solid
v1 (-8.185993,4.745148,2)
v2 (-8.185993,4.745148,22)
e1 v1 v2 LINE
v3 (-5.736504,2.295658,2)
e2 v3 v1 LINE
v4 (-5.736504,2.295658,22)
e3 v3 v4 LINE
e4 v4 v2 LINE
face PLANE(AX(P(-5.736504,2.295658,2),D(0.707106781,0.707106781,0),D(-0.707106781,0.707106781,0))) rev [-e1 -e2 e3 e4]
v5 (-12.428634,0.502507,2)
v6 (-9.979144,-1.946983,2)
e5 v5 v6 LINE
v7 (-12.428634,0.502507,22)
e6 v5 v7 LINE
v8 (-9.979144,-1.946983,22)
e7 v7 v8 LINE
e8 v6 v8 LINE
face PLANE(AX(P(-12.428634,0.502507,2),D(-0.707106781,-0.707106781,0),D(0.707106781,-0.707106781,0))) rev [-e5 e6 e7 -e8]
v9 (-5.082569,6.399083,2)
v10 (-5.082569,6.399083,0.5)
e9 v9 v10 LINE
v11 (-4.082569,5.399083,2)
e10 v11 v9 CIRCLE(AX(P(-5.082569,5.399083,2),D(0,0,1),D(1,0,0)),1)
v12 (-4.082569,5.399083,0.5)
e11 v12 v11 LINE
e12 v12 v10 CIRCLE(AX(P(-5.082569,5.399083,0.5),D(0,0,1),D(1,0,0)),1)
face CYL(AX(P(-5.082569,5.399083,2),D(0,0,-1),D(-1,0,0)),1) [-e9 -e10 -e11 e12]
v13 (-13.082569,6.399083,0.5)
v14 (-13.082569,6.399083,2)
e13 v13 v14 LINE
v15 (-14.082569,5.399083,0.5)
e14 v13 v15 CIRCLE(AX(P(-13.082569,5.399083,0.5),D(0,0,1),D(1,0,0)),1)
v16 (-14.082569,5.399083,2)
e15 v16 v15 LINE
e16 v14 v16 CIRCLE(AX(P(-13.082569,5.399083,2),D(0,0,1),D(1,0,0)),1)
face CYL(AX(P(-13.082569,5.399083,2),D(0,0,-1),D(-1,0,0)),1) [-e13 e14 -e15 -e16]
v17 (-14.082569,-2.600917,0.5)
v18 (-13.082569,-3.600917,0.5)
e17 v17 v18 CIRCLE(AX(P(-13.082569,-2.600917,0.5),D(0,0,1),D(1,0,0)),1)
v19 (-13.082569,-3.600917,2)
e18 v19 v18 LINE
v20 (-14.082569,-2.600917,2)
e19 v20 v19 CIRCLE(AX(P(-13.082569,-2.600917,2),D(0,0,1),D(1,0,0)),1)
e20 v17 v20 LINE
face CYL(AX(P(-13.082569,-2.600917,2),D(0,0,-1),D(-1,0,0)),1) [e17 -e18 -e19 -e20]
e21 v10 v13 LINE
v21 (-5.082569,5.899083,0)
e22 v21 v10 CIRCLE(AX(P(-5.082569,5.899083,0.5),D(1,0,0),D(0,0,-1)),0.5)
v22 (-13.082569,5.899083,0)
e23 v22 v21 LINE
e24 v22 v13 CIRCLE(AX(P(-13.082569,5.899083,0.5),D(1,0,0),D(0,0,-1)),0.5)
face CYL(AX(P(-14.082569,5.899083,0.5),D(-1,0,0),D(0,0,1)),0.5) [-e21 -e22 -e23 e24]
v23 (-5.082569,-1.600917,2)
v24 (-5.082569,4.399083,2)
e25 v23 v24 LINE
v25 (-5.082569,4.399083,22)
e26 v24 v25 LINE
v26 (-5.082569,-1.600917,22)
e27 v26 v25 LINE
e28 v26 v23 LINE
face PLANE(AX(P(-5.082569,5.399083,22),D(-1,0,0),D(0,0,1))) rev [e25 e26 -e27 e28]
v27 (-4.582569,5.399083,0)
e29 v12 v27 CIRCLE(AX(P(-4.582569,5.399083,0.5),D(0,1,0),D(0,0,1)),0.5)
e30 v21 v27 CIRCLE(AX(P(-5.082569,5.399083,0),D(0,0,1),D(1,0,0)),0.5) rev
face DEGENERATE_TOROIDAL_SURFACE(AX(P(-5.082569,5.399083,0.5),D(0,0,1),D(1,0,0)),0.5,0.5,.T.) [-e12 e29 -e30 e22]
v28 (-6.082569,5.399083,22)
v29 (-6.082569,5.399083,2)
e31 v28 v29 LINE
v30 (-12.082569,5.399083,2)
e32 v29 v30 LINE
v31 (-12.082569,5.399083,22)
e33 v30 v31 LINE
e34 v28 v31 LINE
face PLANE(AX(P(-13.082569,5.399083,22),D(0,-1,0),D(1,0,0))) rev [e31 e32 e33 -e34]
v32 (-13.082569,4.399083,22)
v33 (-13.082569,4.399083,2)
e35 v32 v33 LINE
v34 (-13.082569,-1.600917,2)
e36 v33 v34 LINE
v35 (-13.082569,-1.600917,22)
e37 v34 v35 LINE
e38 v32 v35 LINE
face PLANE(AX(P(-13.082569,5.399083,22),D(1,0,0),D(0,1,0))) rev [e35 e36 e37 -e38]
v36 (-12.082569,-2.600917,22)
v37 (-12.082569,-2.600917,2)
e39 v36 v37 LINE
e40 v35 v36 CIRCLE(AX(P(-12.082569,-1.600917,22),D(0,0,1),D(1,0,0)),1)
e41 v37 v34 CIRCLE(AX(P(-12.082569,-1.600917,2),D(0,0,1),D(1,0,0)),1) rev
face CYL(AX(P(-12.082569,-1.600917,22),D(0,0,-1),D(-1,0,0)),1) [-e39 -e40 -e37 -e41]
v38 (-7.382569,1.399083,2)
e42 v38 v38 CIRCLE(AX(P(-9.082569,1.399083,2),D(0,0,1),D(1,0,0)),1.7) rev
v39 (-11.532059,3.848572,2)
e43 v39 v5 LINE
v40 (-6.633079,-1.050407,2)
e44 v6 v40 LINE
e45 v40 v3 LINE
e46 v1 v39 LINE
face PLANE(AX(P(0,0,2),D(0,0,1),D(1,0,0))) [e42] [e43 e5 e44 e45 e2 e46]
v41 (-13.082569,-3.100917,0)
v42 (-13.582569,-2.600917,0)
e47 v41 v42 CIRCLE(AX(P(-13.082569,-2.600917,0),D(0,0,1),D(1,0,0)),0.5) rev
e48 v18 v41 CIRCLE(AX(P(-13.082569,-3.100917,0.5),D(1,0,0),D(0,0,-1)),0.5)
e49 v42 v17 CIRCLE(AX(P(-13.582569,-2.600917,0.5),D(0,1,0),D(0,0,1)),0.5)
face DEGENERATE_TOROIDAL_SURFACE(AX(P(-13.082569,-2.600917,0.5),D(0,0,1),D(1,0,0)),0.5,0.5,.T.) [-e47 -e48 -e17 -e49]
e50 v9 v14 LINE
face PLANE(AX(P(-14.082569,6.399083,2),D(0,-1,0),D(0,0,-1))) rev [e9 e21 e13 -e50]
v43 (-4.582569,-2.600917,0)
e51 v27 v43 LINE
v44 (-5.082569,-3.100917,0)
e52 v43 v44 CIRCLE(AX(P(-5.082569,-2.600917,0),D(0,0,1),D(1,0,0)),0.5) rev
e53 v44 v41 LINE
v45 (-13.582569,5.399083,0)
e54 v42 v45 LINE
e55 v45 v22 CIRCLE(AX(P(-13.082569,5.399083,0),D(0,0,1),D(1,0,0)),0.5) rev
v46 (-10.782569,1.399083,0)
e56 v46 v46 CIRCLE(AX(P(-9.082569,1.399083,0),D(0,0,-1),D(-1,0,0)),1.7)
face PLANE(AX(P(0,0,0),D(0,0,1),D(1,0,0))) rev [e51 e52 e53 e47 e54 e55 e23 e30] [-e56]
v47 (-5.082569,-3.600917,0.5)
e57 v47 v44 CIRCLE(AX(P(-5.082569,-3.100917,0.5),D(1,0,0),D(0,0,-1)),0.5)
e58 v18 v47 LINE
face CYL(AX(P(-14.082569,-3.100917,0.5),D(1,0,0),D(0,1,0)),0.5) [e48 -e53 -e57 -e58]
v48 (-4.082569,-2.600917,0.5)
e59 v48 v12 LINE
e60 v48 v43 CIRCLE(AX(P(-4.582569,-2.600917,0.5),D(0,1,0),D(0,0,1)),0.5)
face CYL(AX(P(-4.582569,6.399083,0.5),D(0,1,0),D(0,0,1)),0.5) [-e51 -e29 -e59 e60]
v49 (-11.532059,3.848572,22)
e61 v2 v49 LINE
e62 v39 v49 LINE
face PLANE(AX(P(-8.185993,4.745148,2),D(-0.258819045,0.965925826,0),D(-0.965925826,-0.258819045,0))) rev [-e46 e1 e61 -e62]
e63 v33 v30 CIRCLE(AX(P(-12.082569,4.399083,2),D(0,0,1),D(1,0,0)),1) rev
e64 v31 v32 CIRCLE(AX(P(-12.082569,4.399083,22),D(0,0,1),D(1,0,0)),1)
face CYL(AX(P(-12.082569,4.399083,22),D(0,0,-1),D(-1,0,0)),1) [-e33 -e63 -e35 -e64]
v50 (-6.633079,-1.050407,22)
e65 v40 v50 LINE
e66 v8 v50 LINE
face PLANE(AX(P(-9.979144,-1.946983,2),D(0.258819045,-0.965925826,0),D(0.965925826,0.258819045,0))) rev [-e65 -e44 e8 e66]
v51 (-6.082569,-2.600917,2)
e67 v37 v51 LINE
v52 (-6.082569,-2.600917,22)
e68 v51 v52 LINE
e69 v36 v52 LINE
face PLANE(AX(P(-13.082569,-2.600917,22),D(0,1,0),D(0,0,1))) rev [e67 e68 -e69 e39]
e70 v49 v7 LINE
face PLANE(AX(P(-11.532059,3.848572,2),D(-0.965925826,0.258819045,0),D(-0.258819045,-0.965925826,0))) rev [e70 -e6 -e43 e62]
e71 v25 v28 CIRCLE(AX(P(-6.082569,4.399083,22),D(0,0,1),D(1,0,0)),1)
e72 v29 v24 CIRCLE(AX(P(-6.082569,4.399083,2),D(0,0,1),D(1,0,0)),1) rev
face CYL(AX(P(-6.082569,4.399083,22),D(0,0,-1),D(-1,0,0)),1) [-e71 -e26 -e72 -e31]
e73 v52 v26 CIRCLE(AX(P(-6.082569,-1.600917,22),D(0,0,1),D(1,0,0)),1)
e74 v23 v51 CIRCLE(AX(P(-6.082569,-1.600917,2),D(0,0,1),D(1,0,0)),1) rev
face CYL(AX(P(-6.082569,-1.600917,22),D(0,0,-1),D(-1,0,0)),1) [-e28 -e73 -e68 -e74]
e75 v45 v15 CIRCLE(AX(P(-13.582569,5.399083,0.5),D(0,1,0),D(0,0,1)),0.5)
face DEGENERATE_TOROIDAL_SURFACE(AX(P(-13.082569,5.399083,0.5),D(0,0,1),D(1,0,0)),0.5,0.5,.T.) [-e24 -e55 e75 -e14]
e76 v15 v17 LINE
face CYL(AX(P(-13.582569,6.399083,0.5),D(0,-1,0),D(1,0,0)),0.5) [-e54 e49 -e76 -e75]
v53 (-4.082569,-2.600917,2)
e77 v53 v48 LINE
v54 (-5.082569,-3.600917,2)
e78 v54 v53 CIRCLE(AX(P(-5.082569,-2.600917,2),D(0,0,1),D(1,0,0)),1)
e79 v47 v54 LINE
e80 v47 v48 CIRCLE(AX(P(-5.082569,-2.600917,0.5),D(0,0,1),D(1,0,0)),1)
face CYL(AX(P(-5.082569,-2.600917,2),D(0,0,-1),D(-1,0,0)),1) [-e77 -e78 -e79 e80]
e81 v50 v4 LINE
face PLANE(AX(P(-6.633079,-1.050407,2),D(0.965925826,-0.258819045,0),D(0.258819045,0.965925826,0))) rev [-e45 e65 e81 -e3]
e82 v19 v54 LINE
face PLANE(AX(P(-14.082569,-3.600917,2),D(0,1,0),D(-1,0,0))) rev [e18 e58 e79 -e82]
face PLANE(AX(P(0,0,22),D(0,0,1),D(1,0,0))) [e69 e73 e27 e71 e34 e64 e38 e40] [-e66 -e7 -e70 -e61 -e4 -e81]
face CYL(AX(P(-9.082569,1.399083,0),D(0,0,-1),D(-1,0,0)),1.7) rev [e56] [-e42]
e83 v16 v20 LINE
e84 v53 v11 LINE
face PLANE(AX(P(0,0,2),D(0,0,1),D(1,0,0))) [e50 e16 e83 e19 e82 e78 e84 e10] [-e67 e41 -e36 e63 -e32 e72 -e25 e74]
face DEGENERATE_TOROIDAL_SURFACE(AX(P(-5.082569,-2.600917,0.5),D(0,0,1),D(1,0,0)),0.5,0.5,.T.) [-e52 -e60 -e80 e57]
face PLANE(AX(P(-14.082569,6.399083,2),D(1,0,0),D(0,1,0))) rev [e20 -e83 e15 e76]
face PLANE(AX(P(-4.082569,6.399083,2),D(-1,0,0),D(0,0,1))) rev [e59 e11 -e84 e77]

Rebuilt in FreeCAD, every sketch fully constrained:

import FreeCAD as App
import Part
import Sketcher
from FreeCAD import Vector
Q = App.Units.Quantity


def edges_at(feature, points):
    """Names of the edges that pass closest to the given points."""
    edges = feature.Shape.Edges
    near = lambda p: min(range(len(edges)), key=lambda i: edges[i].distToShape(Part.Vertex(*p))[0])
    return sorted({f"Edge{near(p) + 1}" for p in points})

doc = App.newDocument("Part")
body = doc.addObject("PartDesign::Body", "Body")

# Sketch on XY plane
sketch1 = body.newObject("Sketcher::SketchObject", "Sketch")
sketch1.AttachmentSupport = (doc.getObject("XY_Plane"), [""])
sketch1.MapMode = "FlatFace"
sketch1.addGeometry([
    Part.LineSegment(Vector(-14.082569, 6.399083, 0), Vector(-14.082569, -3.600917, 0)),
    Part.LineSegment(Vector(-14.082569, -3.600917, 0), Vector(-4.082569, -3.600917, 0)),
    Part.LineSegment(Vector(-4.082569, -3.600917, 0), Vector(-4.082569, 6.399083, 0)),
    Part.LineSegment(Vector(-4.082569, 6.399083, 0), Vector(-14.082569, 6.399083, 0)),
], False)
sketch1.addConstraint([
    Sketcher.Constraint("Coincident", 0, 2, 1, 1),
    Sketcher.Constraint("Coincident", 1, 2, 2, 1),
    Sketcher.Constraint("Coincident", 2, 2, 3, 1),
    Sketcher.Constraint("Coincident", 3, 2, 0, 1),
    Sketcher.Constraint("Vertical", 0),
    Sketcher.Constraint("Horizontal", 1),
    Sketcher.Constraint("Vertical", 2),
    Sketcher.Constraint("Horizontal", 3),
    Sketcher.Constraint("Equal", 3, 0),
    Sketcher.Constraint("DistanceX", 1, 1, 1, 2, Q("10 mm")),
    Sketcher.Constraint("DistanceX", 0, 2, -1, 1, Q("14.082569 mm")),
    Sketcher.Constraint("DistanceY", 0, 2, -1, 1, Q("3.600917 mm")),
])
pad1 = body.newObject("PartDesign::Pad", "Pad")
pad1.Profile = sketch1
pad1.Length = 2
doc.recompute()

fillet = body.newObject("PartDesign::Fillet", "Fillet")
fillet.Base = (pad1, edges_at(pad1, [(-14.083, 6.399, 1), (-4.083, 6.399, 1), (-14.083, -3.601, 1)]))
fillet.Radius = 1
doc.recompute()

fillet2 = body.newObject("PartDesign::Fillet", "Fillet001")
fillet2.Base = (fillet, edges_at(fillet, [(-4.083, -3.601, 1)]))
fillet2.Radius = 1
doc.recompute()

fillet3 = body.newObject("PartDesign::Fillet", "Fillet002")
fillet3.Base = (fillet2, edges_at(fillet2, [
    (-9.083, 6.399, 0),
    (-14.083, 1.399, 0),
    (-9.083, -3.601, 0),
    (-13.79, -3.308, 0),
    (-13.79, 6.106, 0),
    (-4.375, 6.106, 0),
    (-4.083, 1.399, 0),
    (-4.375, -3.308, 0),
]))
fillet3.Radius = 0.5

# Sketch on XY plane
sketch2 = body.newObject("Sketcher::SketchObject", "Sketch001")
sketch2.AttachmentSupport = (doc.getObject("XY_Plane"), [""])
sketch2.MapMode = "FlatFace"
sketch2.AttachmentOffset = App.Placement(Vector(0, 0, 2), App.Rotation())
sketch2.addGeometry([
    Part.LineSegment(Vector(-13.082569, 5.399083, 0), Vector(-13.082569, -2.600917, 0)),
    Part.LineSegment(Vector(-13.082569, -2.600917, 0), Vector(-5.082569, -2.600917, 0)),
    Part.LineSegment(Vector(-5.082569, -2.600917, 0), Vector(-5.082569, 5.399083, 0)),
    Part.LineSegment(Vector(-5.082569, 5.399083, 0), Vector(-13.082569, 5.399083, 0)),
], False)
sketch2.addConstraint([
    Sketcher.Constraint("Coincident", 0, 2, 1, 1),
    Sketcher.Constraint("Coincident", 1, 2, 2, 1),
    Sketcher.Constraint("Coincident", 2, 2, 3, 1),
    Sketcher.Constraint("Coincident", 3, 2, 0, 1),
    Sketcher.Constraint("Vertical", 0),
    Sketcher.Constraint("Horizontal", 1),
    Sketcher.Constraint("Vertical", 2),
    Sketcher.Constraint("Horizontal", 3),
    Sketcher.Constraint("Equal", 3, 0),
    Sketcher.Constraint("DistanceX", 1, 1, 1, 2, Q("8 mm")),
    Sketcher.Constraint("DistanceX", 0, 2, -1, 1, Q("13.082569 mm")),
    Sketcher.Constraint("DistanceY", 0, 2, -1, 1, Q("2.600917 mm")),
])
pad2 = body.newObject("PartDesign::Pad", "Pad001")
pad2.Profile = sketch2
pad2.Length = 20
doc.recompute()

fillet4 = body.newObject("PartDesign::Fillet", "Fillet003")
fillet4.Base = (pad2, edges_at(pad2, [
    (-13.083, 5.399, 12),
    (-13.083, -2.601, 12),
    (-5.083, -2.601, 12),
    (-5.083, 5.399, 12),
]))
fillet4.Radius = 1

# Sketch on XY plane
sketch3 = body.newObject("Sketcher::SketchObject", "Sketch002")
sketch3.AttachmentSupport = (doc.getObject("XY_Plane"), [""])
sketch3.MapMode = "FlatFace"
sketch3.addGeometry(Part.Circle(Vector(-9.082569, 1.399083, 0), Vector(0, 0, 1), 1.7), False)
sketch3.addConstraint([
    Sketcher.Constraint("Diameter", 0, Q("3.4 mm")),
    Sketcher.Constraint("DistanceX", 0, 3, -1, 1, Q("9.082569 mm")),
    Sketcher.Constraint("DistanceY", -1, 1, 0, 3, Q("1.399083 mm")),
])
doc.recompute()
hole = body.newObject("PartDesign::Hole", "Hole")
hole.Profile = sketch3
hole.ThreadType = "None"
hole.Diameter = 3.4
hole.DepthType = "ThroughAll"
hole.Reversed = True

# Sketch on XY plane
sketch4 = body.newObject("Sketcher::SketchObject", "Sketch003")
sketch4.AttachmentSupport = (doc.getObject("XY_Plane"), [""])
sketch4.MapMode = "FlatFace"
sketch4.AttachmentOffset = App.Placement(Vector(0, 0, 22), App.Rotation())
sketch4.addGeometry([
    Part.LineSegment(Vector(-6.633079, -1.050407, 0), Vector(-5.736504, 2.295658, 0)),  # 0
    Part.LineSegment(Vector(-5.736504, 2.295658, 0), Vector(-8.185993, 4.745148, 0)),  # 1
    Part.LineSegment(Vector(-8.185993, 4.745148, 0), Vector(-11.532059, 3.848572, 0)),  # 2
    Part.LineSegment(Vector(-11.532059, 3.848572, 0), Vector(-12.428634, 0.502507, 0)),  # 3
    Part.LineSegment(Vector(-12.428634, 0.502507, 0), Vector(-9.979144, -1.946983, 0)),  # 4
    Part.LineSegment(Vector(-9.979144, -1.946983, 0), Vector(-6.633079, -1.050407, 0)),  # 5
], False)
sketch4.addConstraint([
    Sketcher.Constraint("Coincident", 0, 2, 1, 1),
    Sketcher.Constraint("Coincident", 1, 2, 2, 1),
    Sketcher.Constraint("Coincident", 2, 2, 3, 1),
    Sketcher.Constraint("Coincident", 3, 2, 4, 1),
    Sketcher.Constraint("Coincident", 4, 2, 5, 1),
    Sketcher.Constraint("Coincident", 5, 2, 0, 1),
    Sketcher.Constraint("Parallel", 0, 3),
    Sketcher.Constraint("Parallel", 1, 4),
    Sketcher.Constraint("Parallel", 2, 5),
    Sketcher.Constraint("Equal", 0, 1),
    Sketcher.Constraint("Equal", 1, 2),
    Sketcher.Constraint("Equal", 2, 3),
    Sketcher.Constraint("Angle", 0, Q("75 deg")),
    Sketcher.Constraint("Angle", 1, Q("135 deg")),
    Sketcher.Constraint("Angle", 2, Q("-165 deg")),
    Sketcher.Constraint("Distance", 0, Q("3.464102 mm")),
    Sketcher.Constraint("DistanceY", -1, 1, 0, 2, Q("2.295658 mm")),
    Sketcher.Constraint("DistanceX", 2, 2, -1, 1, Q("11.532059 mm")),
])
pocket1 = body.newObject("PartDesign::Pocket", "Pocket")
pocket1.Profile = sketch4
pocket1.Length = 20

doc.recompute()
